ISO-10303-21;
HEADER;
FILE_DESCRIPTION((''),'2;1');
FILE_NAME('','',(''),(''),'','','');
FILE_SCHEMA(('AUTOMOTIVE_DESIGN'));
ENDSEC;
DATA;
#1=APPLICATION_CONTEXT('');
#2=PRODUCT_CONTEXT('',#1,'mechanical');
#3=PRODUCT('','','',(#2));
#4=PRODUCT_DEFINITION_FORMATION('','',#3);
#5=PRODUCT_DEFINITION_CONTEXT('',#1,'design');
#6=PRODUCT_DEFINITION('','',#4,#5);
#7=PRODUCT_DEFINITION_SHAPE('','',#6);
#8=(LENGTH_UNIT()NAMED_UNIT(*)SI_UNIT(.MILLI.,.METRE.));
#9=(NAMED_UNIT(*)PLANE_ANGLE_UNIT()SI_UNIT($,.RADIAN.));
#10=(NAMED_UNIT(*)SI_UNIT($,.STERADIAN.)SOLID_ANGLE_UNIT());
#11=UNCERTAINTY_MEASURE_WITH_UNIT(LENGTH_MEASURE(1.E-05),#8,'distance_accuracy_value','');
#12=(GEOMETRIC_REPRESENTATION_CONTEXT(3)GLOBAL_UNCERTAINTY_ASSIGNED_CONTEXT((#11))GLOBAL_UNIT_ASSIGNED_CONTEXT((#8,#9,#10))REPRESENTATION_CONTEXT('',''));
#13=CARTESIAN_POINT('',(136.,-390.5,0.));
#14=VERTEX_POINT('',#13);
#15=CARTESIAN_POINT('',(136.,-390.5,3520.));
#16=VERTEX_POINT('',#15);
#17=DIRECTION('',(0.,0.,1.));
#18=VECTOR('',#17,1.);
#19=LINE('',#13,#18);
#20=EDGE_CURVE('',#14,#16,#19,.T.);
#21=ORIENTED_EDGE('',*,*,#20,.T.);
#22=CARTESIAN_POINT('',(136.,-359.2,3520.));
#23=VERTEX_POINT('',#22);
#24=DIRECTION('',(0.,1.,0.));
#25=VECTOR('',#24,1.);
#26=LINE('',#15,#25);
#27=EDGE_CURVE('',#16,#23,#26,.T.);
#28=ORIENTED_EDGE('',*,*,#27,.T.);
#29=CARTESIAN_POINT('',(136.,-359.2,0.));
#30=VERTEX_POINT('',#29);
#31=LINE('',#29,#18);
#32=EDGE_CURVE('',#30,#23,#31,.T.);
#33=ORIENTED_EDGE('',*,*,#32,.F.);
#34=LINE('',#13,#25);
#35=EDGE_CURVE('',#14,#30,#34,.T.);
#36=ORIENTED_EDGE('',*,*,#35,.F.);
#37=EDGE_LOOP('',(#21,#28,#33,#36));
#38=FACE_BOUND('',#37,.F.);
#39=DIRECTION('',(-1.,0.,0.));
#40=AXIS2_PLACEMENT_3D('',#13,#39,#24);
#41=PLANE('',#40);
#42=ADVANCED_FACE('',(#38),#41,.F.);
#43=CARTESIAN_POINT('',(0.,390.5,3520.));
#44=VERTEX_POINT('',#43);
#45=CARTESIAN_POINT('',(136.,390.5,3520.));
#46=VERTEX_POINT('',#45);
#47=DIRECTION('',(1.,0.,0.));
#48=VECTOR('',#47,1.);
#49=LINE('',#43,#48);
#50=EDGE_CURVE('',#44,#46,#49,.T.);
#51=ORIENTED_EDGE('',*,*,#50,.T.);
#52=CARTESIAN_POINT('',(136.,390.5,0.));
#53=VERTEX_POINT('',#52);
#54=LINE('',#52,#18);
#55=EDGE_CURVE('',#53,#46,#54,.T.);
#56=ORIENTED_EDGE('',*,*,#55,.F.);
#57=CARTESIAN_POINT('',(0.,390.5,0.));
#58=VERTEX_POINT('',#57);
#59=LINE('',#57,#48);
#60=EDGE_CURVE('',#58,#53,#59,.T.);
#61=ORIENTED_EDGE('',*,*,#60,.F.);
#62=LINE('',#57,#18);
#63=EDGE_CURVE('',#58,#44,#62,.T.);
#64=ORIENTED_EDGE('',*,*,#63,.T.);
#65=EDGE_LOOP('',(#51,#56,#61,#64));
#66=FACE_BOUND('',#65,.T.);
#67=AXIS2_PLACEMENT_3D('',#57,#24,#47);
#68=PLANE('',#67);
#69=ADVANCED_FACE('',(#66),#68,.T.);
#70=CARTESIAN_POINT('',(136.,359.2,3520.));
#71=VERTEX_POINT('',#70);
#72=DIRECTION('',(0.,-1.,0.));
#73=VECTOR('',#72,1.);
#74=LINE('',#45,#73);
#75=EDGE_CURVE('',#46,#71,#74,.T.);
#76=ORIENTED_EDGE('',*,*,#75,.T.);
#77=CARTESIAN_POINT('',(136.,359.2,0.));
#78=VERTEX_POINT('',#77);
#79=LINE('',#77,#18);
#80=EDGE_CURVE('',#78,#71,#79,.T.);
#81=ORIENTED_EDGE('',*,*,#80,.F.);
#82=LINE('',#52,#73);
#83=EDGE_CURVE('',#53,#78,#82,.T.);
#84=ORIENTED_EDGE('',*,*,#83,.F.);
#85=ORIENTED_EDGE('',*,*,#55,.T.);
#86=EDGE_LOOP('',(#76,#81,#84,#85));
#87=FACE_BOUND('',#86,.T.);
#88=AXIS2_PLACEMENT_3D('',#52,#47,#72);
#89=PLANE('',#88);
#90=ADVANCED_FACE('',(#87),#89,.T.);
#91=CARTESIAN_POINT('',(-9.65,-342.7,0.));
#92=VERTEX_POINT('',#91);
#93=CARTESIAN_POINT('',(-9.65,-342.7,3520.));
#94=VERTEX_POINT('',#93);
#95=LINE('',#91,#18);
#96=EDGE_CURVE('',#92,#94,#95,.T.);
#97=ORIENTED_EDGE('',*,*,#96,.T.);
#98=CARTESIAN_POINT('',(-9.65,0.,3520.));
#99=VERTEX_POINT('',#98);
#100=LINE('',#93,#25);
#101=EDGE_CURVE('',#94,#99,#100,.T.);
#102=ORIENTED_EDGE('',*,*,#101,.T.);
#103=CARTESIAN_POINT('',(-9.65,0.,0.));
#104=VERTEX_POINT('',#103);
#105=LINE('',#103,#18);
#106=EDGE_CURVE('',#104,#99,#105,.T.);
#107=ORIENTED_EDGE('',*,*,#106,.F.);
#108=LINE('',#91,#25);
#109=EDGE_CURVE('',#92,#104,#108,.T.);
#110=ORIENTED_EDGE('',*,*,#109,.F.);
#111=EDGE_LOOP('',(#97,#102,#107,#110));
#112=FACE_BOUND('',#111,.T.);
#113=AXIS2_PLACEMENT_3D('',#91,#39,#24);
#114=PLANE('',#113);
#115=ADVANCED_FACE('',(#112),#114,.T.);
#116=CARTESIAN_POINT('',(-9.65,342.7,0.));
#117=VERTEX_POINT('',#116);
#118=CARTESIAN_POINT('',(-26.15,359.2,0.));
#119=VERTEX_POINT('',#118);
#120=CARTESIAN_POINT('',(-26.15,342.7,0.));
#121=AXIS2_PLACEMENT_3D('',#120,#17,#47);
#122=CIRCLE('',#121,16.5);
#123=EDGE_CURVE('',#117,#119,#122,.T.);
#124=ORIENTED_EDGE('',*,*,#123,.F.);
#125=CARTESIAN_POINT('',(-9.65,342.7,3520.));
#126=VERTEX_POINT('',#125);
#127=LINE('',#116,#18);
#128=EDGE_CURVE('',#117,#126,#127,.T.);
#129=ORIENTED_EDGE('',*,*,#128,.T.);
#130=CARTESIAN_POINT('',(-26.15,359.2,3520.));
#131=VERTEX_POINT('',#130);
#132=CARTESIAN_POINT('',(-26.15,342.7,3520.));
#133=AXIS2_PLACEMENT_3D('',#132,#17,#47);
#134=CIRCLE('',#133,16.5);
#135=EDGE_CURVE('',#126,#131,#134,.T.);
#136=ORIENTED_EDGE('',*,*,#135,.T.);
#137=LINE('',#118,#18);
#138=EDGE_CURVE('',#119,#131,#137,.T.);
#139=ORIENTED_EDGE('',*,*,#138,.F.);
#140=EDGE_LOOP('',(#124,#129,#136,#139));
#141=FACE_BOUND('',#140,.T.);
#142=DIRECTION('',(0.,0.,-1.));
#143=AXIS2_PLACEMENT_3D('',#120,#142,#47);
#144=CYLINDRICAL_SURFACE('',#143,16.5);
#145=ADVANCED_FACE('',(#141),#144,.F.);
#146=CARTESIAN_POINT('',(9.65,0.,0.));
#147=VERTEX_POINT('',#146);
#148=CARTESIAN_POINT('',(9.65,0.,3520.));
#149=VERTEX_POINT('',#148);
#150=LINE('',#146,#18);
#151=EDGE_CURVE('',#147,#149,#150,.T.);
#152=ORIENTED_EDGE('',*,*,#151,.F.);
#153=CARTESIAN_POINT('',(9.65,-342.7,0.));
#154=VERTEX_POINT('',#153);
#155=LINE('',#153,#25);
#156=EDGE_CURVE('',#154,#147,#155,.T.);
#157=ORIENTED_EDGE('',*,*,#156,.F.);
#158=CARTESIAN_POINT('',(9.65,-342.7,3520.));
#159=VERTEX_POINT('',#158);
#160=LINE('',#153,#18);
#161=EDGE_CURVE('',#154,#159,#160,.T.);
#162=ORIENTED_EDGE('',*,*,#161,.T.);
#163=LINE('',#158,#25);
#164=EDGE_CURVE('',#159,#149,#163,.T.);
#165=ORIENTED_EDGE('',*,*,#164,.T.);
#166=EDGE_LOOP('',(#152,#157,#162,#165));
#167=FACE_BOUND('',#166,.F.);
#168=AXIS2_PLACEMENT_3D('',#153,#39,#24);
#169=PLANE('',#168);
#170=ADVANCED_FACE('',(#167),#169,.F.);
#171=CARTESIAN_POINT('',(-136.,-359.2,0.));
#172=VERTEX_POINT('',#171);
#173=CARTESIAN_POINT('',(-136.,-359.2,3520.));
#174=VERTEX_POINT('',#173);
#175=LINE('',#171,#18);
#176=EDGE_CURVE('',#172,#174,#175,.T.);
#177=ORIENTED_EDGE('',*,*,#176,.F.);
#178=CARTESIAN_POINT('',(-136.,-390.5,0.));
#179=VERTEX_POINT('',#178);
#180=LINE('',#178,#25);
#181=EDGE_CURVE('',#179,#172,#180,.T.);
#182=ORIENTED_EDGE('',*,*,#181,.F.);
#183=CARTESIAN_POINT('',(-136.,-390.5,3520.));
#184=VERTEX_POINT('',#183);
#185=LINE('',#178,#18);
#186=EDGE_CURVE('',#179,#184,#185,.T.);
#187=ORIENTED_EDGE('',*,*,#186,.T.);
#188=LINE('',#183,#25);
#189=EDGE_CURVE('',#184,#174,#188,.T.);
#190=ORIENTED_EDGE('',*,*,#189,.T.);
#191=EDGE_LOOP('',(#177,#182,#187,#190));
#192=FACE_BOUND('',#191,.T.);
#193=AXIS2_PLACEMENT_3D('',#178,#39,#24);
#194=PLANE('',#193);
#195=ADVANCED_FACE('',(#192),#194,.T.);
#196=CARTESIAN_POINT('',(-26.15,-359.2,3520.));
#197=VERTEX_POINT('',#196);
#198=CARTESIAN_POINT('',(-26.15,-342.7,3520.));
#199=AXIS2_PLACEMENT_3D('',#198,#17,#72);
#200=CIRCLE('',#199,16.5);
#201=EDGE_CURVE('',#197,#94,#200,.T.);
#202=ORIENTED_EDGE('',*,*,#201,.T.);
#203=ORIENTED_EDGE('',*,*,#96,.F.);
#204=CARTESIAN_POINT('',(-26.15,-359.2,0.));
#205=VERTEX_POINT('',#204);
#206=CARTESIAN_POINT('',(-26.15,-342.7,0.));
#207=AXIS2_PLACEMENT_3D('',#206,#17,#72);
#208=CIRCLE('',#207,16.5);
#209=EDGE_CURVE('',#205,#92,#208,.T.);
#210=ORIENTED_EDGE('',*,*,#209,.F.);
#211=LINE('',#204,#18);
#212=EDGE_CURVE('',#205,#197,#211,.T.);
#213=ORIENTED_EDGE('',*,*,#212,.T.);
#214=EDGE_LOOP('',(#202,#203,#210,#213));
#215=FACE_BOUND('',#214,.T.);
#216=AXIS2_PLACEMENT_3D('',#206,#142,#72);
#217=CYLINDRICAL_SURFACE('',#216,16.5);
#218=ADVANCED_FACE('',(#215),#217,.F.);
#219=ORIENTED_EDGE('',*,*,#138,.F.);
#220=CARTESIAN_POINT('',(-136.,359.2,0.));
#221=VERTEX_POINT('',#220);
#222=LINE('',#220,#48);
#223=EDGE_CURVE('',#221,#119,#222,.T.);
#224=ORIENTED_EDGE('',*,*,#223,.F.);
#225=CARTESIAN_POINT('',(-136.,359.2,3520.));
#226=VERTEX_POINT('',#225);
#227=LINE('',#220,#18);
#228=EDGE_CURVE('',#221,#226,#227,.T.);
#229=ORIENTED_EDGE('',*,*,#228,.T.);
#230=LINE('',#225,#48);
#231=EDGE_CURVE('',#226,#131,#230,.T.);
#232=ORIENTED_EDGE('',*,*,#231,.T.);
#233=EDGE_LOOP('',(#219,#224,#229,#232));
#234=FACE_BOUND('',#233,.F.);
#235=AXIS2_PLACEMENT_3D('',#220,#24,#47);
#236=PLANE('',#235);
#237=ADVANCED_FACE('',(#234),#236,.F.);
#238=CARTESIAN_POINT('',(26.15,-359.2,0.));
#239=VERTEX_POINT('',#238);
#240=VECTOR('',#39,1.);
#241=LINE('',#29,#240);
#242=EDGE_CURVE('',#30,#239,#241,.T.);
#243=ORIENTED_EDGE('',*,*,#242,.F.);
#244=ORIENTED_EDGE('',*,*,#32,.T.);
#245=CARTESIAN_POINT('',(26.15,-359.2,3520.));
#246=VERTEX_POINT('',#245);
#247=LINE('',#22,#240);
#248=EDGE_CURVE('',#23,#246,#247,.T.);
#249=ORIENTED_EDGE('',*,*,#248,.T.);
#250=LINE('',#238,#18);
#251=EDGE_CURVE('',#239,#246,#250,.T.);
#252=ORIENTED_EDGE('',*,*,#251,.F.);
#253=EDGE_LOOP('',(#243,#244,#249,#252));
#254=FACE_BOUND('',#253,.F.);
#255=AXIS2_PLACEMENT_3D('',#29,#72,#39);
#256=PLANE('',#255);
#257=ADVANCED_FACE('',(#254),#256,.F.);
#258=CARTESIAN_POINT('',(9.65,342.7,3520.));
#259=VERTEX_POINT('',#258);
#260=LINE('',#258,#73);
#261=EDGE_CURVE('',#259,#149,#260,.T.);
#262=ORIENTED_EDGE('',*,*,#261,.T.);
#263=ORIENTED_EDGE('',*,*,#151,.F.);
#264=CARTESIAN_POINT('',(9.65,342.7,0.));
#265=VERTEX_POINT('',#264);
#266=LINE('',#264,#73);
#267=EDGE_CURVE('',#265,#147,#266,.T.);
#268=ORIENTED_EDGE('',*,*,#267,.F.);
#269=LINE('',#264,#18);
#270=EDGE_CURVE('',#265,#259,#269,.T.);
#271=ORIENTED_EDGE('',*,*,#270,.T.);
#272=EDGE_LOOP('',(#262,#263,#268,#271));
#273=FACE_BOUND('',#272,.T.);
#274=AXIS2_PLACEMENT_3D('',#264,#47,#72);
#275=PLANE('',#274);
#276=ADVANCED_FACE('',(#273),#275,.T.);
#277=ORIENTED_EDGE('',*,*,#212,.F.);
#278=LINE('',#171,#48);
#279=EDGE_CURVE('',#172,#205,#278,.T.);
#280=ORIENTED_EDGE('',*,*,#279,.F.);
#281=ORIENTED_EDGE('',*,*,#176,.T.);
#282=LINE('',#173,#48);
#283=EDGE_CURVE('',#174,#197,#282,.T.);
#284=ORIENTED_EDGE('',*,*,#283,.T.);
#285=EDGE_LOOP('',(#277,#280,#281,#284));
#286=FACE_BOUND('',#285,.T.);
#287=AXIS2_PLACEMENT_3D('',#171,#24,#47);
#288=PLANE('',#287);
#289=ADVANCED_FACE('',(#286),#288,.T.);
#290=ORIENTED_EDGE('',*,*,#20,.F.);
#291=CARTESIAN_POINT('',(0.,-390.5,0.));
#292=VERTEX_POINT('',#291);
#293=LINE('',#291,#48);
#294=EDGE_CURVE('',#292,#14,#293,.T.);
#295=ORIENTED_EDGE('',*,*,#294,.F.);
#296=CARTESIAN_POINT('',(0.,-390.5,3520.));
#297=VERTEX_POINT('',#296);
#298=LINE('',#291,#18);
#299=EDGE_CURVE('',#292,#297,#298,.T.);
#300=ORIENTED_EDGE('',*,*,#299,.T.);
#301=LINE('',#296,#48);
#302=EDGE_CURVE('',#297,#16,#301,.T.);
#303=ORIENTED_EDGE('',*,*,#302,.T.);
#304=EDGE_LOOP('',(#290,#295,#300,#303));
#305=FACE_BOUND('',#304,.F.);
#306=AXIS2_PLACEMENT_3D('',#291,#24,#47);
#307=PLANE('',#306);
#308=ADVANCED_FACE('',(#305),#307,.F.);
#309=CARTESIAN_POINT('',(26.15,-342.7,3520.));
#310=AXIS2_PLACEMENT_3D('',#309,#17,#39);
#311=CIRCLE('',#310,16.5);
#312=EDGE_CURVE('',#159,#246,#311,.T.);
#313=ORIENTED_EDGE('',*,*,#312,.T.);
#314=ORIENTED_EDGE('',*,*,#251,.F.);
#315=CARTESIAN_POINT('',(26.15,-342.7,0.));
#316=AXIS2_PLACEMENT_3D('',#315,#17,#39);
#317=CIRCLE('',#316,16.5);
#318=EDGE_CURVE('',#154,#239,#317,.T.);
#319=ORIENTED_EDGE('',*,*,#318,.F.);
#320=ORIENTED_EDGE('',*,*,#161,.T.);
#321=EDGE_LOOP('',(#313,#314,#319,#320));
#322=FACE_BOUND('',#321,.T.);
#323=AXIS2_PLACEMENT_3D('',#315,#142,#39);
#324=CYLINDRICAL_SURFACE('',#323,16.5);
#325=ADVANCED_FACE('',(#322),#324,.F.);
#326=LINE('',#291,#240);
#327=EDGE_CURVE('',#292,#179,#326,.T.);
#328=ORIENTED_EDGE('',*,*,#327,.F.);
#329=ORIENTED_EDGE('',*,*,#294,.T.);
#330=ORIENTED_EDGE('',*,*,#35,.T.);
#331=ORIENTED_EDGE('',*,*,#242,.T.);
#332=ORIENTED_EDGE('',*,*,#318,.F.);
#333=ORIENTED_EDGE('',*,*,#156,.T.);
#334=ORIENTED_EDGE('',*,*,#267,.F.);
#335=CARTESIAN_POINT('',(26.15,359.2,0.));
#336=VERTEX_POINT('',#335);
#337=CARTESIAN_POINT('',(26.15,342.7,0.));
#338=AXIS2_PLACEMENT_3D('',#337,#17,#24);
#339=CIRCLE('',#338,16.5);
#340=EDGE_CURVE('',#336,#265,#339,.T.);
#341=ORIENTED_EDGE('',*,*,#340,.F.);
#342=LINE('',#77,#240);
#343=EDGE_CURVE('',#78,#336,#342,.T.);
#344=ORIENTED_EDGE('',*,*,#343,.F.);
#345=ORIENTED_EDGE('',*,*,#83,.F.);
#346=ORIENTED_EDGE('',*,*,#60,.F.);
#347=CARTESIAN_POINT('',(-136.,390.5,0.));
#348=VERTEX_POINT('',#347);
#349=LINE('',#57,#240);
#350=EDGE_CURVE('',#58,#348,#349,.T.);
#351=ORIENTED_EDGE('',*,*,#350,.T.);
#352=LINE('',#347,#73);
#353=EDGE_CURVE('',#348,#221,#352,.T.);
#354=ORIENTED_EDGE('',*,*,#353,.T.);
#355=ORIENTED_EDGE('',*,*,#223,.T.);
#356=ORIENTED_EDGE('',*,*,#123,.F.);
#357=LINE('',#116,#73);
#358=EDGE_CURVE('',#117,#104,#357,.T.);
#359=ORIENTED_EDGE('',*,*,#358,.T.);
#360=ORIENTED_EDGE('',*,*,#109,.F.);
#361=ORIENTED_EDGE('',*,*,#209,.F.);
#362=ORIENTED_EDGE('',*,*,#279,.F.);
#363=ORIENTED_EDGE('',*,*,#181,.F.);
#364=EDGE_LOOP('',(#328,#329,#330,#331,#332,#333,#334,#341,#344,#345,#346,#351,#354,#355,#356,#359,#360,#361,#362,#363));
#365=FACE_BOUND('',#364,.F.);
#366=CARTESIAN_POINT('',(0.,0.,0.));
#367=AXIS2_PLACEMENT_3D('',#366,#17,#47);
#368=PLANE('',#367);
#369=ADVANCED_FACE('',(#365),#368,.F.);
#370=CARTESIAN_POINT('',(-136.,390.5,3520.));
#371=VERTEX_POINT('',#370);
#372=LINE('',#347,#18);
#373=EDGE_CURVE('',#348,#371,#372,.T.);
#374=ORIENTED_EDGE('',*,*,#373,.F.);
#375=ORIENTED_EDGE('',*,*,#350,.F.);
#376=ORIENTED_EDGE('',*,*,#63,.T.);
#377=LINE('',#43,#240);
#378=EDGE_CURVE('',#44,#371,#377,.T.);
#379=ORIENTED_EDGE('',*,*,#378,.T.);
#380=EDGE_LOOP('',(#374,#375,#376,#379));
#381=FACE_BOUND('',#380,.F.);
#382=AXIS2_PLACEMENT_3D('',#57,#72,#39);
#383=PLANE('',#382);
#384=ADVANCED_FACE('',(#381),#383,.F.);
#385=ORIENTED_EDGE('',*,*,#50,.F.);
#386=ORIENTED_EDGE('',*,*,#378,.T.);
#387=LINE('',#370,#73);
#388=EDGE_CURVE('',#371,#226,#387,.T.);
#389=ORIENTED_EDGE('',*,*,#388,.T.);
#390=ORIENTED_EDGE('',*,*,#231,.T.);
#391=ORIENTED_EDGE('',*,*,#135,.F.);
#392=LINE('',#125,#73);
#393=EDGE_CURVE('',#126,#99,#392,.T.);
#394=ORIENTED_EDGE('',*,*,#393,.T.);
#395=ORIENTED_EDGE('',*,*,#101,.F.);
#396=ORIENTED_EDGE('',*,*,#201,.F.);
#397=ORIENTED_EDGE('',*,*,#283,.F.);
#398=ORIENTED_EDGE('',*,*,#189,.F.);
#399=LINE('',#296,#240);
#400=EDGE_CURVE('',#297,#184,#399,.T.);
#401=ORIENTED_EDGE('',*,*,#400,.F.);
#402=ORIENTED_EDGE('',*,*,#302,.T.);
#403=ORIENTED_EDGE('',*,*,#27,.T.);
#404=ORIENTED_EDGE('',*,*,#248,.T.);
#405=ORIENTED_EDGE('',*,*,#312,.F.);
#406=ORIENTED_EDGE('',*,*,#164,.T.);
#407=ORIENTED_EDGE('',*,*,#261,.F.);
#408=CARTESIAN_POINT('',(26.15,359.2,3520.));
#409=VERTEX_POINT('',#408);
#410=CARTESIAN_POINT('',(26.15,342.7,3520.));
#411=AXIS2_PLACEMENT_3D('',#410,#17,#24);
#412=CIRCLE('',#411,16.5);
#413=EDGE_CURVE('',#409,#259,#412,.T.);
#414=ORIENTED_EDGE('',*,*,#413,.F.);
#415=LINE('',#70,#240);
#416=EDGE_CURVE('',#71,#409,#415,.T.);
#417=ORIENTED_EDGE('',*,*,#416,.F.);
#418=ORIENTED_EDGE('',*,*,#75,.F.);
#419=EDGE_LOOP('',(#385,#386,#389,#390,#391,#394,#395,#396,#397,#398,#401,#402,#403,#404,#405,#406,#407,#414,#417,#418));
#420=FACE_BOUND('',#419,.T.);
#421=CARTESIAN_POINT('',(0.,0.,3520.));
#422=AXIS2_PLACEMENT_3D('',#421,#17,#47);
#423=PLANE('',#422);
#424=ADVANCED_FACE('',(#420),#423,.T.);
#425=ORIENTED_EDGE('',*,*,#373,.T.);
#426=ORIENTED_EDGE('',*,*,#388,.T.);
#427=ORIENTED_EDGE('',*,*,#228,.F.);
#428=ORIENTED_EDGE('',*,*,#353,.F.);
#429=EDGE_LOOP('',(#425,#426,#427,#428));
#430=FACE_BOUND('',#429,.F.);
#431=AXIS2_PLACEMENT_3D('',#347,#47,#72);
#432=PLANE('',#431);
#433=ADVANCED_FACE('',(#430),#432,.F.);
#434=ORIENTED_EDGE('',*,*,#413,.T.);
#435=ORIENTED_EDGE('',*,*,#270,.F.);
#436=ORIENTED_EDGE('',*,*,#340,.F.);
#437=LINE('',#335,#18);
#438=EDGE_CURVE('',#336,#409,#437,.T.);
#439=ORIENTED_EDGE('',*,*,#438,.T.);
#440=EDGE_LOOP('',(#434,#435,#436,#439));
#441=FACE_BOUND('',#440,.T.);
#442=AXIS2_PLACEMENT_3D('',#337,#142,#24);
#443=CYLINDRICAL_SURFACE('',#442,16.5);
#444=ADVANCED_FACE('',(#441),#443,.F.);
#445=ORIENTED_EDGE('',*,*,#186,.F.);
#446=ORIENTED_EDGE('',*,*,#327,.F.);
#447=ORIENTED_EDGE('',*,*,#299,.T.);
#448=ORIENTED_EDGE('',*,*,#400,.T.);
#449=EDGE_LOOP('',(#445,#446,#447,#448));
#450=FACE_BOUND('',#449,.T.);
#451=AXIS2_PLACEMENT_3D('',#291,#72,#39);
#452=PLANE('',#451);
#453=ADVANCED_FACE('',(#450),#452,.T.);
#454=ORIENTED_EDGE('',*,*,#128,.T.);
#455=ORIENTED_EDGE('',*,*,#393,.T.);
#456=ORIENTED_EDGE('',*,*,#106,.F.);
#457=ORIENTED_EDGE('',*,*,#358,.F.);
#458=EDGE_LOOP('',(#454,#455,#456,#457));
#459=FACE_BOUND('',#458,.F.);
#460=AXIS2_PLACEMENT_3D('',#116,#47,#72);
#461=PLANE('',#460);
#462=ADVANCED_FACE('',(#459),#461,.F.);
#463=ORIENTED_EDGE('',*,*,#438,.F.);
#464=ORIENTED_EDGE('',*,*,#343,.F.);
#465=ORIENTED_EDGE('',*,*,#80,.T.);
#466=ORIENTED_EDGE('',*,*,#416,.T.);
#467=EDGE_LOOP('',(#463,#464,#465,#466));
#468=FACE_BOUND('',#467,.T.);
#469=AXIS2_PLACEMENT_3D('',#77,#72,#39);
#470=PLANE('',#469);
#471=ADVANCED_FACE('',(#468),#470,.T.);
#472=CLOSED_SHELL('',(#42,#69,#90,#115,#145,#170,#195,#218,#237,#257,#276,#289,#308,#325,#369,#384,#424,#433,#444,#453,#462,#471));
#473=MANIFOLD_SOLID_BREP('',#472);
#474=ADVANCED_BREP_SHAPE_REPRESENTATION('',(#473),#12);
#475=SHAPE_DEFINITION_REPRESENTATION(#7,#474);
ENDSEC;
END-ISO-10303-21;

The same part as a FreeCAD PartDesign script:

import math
import FreeCAD as App
import Part
import Sketcher

V = App.Vector
Q = App.Units.Quantity

doc = App.newDocument("Part")
body = doc.addObject("PartDesign::Body", "Body")

sketch1 = doc.addObject("Sketcher::SketchObject", "Sketch")
body.addObject(sketch1)
sketch1.AttachmentSupport = (doc.XY_Plane, [""])
sketch1.MapMode = "FlatFace"
sketch1.addGeometry(Part.LineSegment(V(-136, -359, 0), V(-136, -390, 0)), False)
sketch1.addGeometry(Part.LineSegment(V(-136, -390, 0), V(136, -390, 0)), False)
sketch1.addGeometry(Part.LineSegment(V(136, -390, 0), V(136, -359, 0)), False)
sketch1.addGeometry(Part.LineSegment(V(136, -359, 0), V(26, -359, 0)), False)
sketch1.addGeometry(Part.ArcOfCircle(Part.Circle(V(26, -343, 0), V(0, 0, 1), 16), math.radians(180), math.radians(270)), False)
sketch1.addGeometry(Part.LineSegment(V(10, -343, 0), V(10, 343, 0)), False)
sketch1.addGeometry(Part.ArcOfCircle(Part.Circle(V(26, 343, 0), V(0, 0, 1), 16), math.radians(90), math.radians(180)), False)
sketch1.addGeometry(Part.LineSegment(V(26, 359, 0), V(136, 359, 0)), False)
sketch1.addGeometry(Part.LineSegment(V(136, 359, 0), V(136, 390, 0)), False)
sketch1.addGeometry(Part.LineSegment(V(136, 390, 0), V(-136, 390, 0)), False)
sketch1.addGeometry(Part.LineSegment(V(-136, 390, 0), V(-136, 359, 0)), False)
sketch1.addGeometry(Part.LineSegment(V(-136, 359, 0), V(-26, 359, 0)), False)
sketch1.addGeometry(Part.ArcOfCircle(Part.Circle(V(-26, 343, 0), V(0, 0, 1), 16), math.radians(0), math.radians(90)), False)
sketch1.addGeometry(Part.LineSegment(V(-10, 343, 0), V(-10, -343, 0)), False)
sketch1.addGeometry(Part.ArcOfCircle(Part.Circle(V(-26, -343, 0), V(0, 0, 1), 16), math.radians(-90), math.radians(0)), False)
sketch1.addGeometry(Part.LineSegment(V(-26, -359, 0), V(-136, -359, 0)), False)
sketch1.addConstraint(Sketcher.Constraint("Coincident", 0, 2, 1, 1))
sketch1.addConstraint(Sketcher.Constraint("Coincident", 1, 2, 2, 1))
sketch1.addConstraint(Sketcher.Constraint("Coincident", 2, 2, 3, 1))
sketch1.addConstraint(Sketcher.Constraint("Tangent", 3, 2, 4, 2))
sketch1.addConstraint(Sketcher.Constraint("Tangent", 4, 1, 5, 1))
sketch1.addConstraint(Sketcher.Constraint("Tangent", 5, 2, 6, 2))
sketch1.addConstraint(Sketcher.Constraint("Tangent", 6, 1, 7, 1))
sketch1.addConstraint(Sketcher.Constraint("Coincident", 7, 2, 8, 1))
sketch1.addConstraint(Sketcher.Constraint("Coincident", 8, 2, 9, 1))
sketch1.addConstraint(Sketcher.Constraint("Coincident", 9, 2, 10, 1))
sketch1.addConstraint(Sketcher.Constraint("Coincident", 10, 2, 11, 1))
sketch1.addConstraint(Sketcher.Constraint("Tangent", 11, 2, 12, 2))
sketch1.addConstraint(Sketcher.Constraint("Tangent", 12, 1, 13, 1))
sketch1.addConstraint(Sketcher.Constraint("Tangent", 13, 2, 14, 2))
sketch1.addConstraint(Sketcher.Constraint("Tangent", 14, 1, 15, 1))
sketch1.addConstraint(Sketcher.Constraint("Coincident", 15, 2, 0, 1))
sketch1.addConstraint(Sketcher.Constraint("Vertical", 0))
sketch1.addConstraint(Sketcher.Constraint("Horizontal", 1))
sketch1.addConstraint(Sketcher.Constraint("Vertical", 2))
sketch1.addConstraint(Sketcher.Constraint("Horizontal", 3))
sketch1.addConstraint(Sketcher.Constraint("Vertical", 5))
sketch1.addConstraint(Sketcher.Constraint("Horizontal", 7))
sketch1.addConstraint(Sketcher.Constraint("Vertical", 8))
sketch1.addConstraint(Sketcher.Constraint("Horizontal", 9))
sketch1.addConstraint(Sketcher.Constraint("Vertical", 10))
sketch1.addConstraint(Sketcher.Constraint("Horizontal", 11))
sketch1.addConstraint(Sketcher.Constraint("Vertical", 13))
sketch1.addConstraint(Sketcher.Constraint("Horizontal", 15))
sketch1.addConstraint(Sketcher.Constraint("Equal", 4, 6))
sketch1.addConstraint(Sketcher.Constraint("Equal", 6, 12))
sketch1.addConstraint(Sketcher.Constraint("Equal", 12, 14))
sketch1.addConstraint(Sketcher.Constraint("Symmetric", 4, 3, 12, 3, -1, 1))
sketch1.addConstraint(Sketcher.Constraint("Symmetric", 0, 2, 8, 2, -1, 1))
sketch1.addConstraint(Sketcher.Constraint("Symmetric", 7, 2, 10, 2, -2))
sketch1.addConstraint(Sketcher.Constraint("Symmetric", 2, 2, 15, 2, -2))
sketch1.addConstraint(Sketcher.Constraint("Radius", 4, Q("16.5 mm")))
sketch1.addConstraint(Sketcher.Constraint("DistanceY", 0, 2, 0, 1, Q("31.3 mm")))
sketch1.addConstraint(Sketcher.Constraint("DistanceX", 0, 2, -1, 1, Q("136 mm")))
sketch1.addConstraint(Sketcher.Constraint("DistanceY", 0, 2, -1, 1, Q("390.5 mm")))
sketch1.addConstraint(Sketcher.Constraint("DistanceX", -1, 1, 4, 1, Q("9.65 mm")))
pad1 = doc.addObject("PartDesign::Pad", "Pad")
body.addObject(pad1)
pad1.Profile = sketch1
pad1.Length = 3520

doc.recompute()
